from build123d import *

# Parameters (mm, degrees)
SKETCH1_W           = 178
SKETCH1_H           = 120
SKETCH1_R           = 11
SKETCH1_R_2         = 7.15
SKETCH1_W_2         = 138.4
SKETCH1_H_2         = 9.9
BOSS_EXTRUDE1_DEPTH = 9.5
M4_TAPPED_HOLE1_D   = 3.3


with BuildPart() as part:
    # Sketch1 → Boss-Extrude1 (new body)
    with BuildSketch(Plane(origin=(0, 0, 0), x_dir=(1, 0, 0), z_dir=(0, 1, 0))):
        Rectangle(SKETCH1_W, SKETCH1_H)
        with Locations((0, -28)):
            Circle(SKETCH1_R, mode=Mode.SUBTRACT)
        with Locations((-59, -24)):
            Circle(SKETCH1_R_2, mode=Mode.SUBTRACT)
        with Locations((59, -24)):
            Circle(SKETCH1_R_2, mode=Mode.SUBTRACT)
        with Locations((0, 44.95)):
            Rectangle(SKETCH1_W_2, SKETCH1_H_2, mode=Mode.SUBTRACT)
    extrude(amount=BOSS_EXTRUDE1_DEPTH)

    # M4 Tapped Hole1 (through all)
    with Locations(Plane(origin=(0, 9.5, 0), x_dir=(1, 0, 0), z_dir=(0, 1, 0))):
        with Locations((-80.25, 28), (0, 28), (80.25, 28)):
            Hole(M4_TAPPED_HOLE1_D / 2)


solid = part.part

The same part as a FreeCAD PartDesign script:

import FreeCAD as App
import Part
import Sketcher
from FreeCAD import Vector

doc = App.newDocument("Part")
body = doc.addObject("PartDesign::Body", "Body")

# Sketch on XZ plane
sketch1 = doc.addObject("Sketcher::SketchObject", "Sketch")
body.addObject(sketch1)
sketch1.AttachmentSupport = (doc.XZ_Plane, [""])
sketch1.MapMode = "FlatFace"
sketch1.addGeometry([
    Part.LineSegment(Vector(-89, -60, 0), Vector(-89, 60, 0)),  # 0
    Part.LineSegment(Vector(-89, 60, 0), Vector(89, 60, 0)),  # 1
    Part.LineSegment(Vector(89, 60, 0), Vector(89, -60, 0)),  # 2
    Part.LineSegment(Vector(89, -60, 0), Vector(-89, -60, 0)),  # 3
    Part.Circle(Vector(-59, 24, 0), Vector(0, 0, 1), 7),  # 4
    Part.Circle(Vector(0, 28, 0), Vector(0, 0, 1), 11),  # 5
    Part.Circle(Vector(59, 24, 0), Vector(0, 0, 1), 7),  # 6
    Part.LineSegment(Vector(69, -40, 0), Vector(-69, -40, 0)),  # 7
    Part.LineSegment(Vector(-69, -40, 0), Vector(-69, -50, 0)),  # 8
    Part.LineSegment(Vector(-69, -50, 0), Vector(69, -50, 0)),  # 9
    Part.LineSegment(Vector(69, -50, 0), Vector(69, -40, 0)),  # 10
], False)
sketch1.addConstraint([
    Sketcher.Constraint("Coincident", 0, 2, 1, 1),
    Sketcher.Constraint("Coincident", 1, 2, 2, 1),
    Sketcher.Constraint("Coincident", 2, 2, 3, 1),
    Sketcher.Constraint("Coincident", 3, 2, 0, 1),
    Sketcher.Constraint("Coincident", 7, 2, 8, 1),
    Sketcher.Constraint("Coincident", 8, 2, 9, 1),
    Sketcher.Constraint("Coincident", 9, 2, 10, 1),
    Sketcher.Constraint("Coincident", 10, 2, 7, 1),
    Sketcher.Constraint("Vertical", 0),
    Sketcher.Constraint("Horizontal", 1),
    Sketcher.Constraint("Vertical", 2),
    Sketcher.Constraint("Horizontal", 3),
    Sketcher.Constraint("Horizontal", 7),
    Sketcher.Constraint("Vertical", 8),
    Sketcher.Constraint("Horizontal", 9),
    Sketcher.Constraint("Vertical", 10),
    Sketcher.Constraint("Equal", 4, 6),
    Sketcher.Constraint("Symmetric", 0, 2, 2, 2, -1, 1),
    Sketcher.Constraint("Symmetric", 4, 3, 6, 3, -2),
    Sketcher.Constraint("PointOnObject", 5, 3, -2),
    Sketcher.Constraint("Diameter", 5, 22.0),
    Sketcher.Constraint("Diameter", 4, 14.3),
    Sketcher.Constraint("DistanceX", 1, 1, 1, 2, 178.0),
    Sketcher.Constraint("DistanceY", 0, 1, 0, 2, 120.0),
    Sketcher.Constraint("DistanceX", 7, 2, 7, 1, 138.4),
    Sketcher.Constraint("DistanceY", 8, 2, 8, 1, 9.9),
    Sketcher.Constraint("DistanceX", 4, 3, -1, 1, 59.0),
    Sketcher.Constraint("DistanceY", -1, 1, 4, 3, 24.0),
    Sketcher.Constraint("DistanceY", -1, 1, 5, 3, 28.0),
    Sketcher.Constraint("DistanceY", 7, 2, -1, 1, 40.0),
    Sketcher.Constraint("DistanceX", 7, 2, -1, 1, 69.2),
])
pad1 = doc.addObject("PartDesign::Pad", "Pad")
body.addObject(pad1)
pad1.Profile = sketch1
pad1.Length = 9.5
pad1.Reversed = True

# Sketch on XZ plane
sketch2 = doc.addObject("Sketcher::SketchObject", "Sketch001")
body.addObject(sketch2)
sketch2.AttachmentSupport = (doc.XZ_Plane, [""])
sketch2.MapMode = "FlatFace"
sketch2.AttachmentOffset = App.Placement(Vector(0, 0, -9.5), App.Rotation())
sketch2.addGeometry([
    Part.Circle(Vector(-80.2, -28, 0), Vector(0, 0, 1), 1.6),
    Part.Circle(Vector(0, -28, 0), Vector(0, 0, 1), 1.6),
    Part.Circle(Vector(80.2, -28, 0), Vector(0, 0, 1), 1.6),
], False)
sketch2.addConstraint([
    Sketcher.Constraint("Equal", 0, 1),
    Sketcher.Constraint("Equal", 1, 2),
    Sketcher.Constraint("Symmetric", 0, 3, 2, 3, -2),
    Sketcher.Constraint("PointOnObject", 1, 3, -2),
    Sketcher.Constraint("Horizontal", 0, 3, 1, 3),
    Sketcher.Constraint("Diameter", 0, 3.3),
    Sketcher.Constraint("DistanceY", 0, 3, -1, 1, 28.0),
    Sketcher.Constraint("DistanceX", 0, 3, 2, 3, 160.5),
])
doc.recompute()
hole = doc.addObject("PartDesign::Hole", "Hole")
body.addObject(hole)
hole.Profile = sketch2
hole.ThreadType = "None"
hole.Diameter = 3.3
hole.DepthType = "ThroughAll"
hole.Reversed = True

doc.recompute()
